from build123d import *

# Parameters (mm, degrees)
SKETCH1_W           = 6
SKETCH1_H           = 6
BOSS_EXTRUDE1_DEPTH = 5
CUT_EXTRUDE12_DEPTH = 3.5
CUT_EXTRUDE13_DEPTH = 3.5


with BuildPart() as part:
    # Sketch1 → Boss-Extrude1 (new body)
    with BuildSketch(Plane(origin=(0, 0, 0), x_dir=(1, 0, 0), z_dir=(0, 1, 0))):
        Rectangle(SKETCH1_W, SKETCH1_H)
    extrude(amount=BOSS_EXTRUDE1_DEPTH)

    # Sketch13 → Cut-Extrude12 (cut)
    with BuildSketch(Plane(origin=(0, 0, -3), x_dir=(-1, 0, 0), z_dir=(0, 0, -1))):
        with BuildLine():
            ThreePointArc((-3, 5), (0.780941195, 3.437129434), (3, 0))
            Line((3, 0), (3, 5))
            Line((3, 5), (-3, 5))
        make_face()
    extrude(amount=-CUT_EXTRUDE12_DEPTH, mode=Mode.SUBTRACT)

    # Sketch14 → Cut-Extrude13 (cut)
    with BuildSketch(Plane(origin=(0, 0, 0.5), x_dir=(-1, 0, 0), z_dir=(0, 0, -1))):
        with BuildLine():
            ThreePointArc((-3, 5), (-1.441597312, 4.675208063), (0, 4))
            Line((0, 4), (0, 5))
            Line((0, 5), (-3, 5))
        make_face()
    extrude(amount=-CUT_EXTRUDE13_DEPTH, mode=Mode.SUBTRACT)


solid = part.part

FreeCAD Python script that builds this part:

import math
import FreeCAD as App
import Part
import Sketcher
from FreeCAD import Vector


def add_polygon(sketch, points):
    """Adds a closed chain of lines whose ends are joined by coincident constraints."""
    first, n = sketch.GeometryCount, len(points)
    for a, b in zip(points, points[1:] + points[:1]):
        sketch.addGeometry(Part.LineSegment(App.Vector(*a, 0), App.Vector(*b, 0)), False)
    for i in range(n):
        sketch.addConstraint(Sketcher.Constraint("Coincident", first + i, 2, first + (i + 1) % n, 1))

doc = App.newDocument("Part")
body = doc.addObject("PartDesign::Body", "Body")

# Sketch on XZ plane
sketch1 = body.newObject("Sketcher::SketchObject", "Sketch")
sketch1.AttachmentSupport = (doc.getObject("XZ_Plane"), [""])
sketch1.MapMode = "FlatFace"
add_polygon(sketch1, [(-3, -3), (-3, 3), (3, 3), (3, -3)])  # lines 0-3
sketch1.addConstraint(Sketcher.Constraint("Vertical", 0))
sketch1.addConstraint(Sketcher.Constraint("Horizontal", 1))
sketch1.addConstraint(Sketcher.Constraint("Vertical", 2))
sketch1.addConstraint(Sketcher.Constraint("Horizontal", 3))
sketch1.addConstraint(Sketcher.Constraint("Symmetric", 0, 2, 2, 2, -1, 1))
sketch1.addConstraint(Sketcher.Constraint("Equal", 3, 0))
sketch1.addConstraint(Sketcher.Constraint("DistanceX", 1, 1, 1, 2, 6.0))
pad1 = body.newObject("PartDesign::Pad", "Pad")
pad1.Profile = sketch1
pad1.Length = 5
pad1.Reversed = True

# Sketch on XY plane
sketch2 = body.newObject("Sketcher::SketchObject", "Sketch001")
sketch2.AttachmentSupport = (doc.getObject("XY_Plane"), [""])
sketch2.MapMode = "FlatFace"
sketch2.AttachmentOffset = App.Placement(Vector(0, 0, -3), App.Rotation())
sketch2.addGeometry(Part.ArcOfCircle(Part.Circle(Vector(4, -2, 0), Vector(0, 0, 1), 7), math.radians(95), math.radians(165)), False)
sketch2.addGeometry(Part.LineSegment(Vector(-3, 0, 0), Vector(-3, 5, 0)), False)
sketch2.addGeometry(Part.LineSegment(Vector(-3, 5, 0), Vector(3, 5, 0)), False)
sketch2.addConstraint(Sketcher.Constraint("Coincident", 0, 2, 1, 1))
sketch2.addConstraint(Sketcher.Constraint("Coincident", 1, 2, 2, 1))
sketch2.addConstraint(Sketcher.Constraint("Coincident", 2, 2, 0, 1))
sketch2.addConstraint(Sketcher.Constraint("Vertical", 1))
sketch2.addConstraint(Sketcher.Constraint("Horizontal", 2))
sketch2.addConstraint(Sketcher.Constraint("PointOnObject", 0, 2, -1))
sketch2.addConstraint(Sketcher.Constraint("DistanceX", 2, 1, 2, 2, 6.0))
sketch2.addConstraint(Sketcher.Constraint("DistanceY", 1, 1, 1, 2, 5.0))
sketch2.addConstraint(Sketcher.Constraint("DistanceX", 0, 2, -1, 1, 3.0))
sketch2.addConstraint(Sketcher.Constraint("Radius", 0, 6.860605))
pocket1 = body.newObject("PartDesign::Pocket", "Pocket")
pocket1.Profile = sketch2
pocket1.Length = 3.5
pocket1.Reversed = True

# Sketch on XY plane
sketch3 = body.newObject("Sketcher::SketchObject", "Sketch002")
sketch3.AttachmentSupport = (doc.getObject("XY_Plane"), [""])
sketch3.MapMode = "FlatFace"
sketch3.AttachmentOffset = App.Placement(Vector(0, 0, 0.5), App.Rotation())
sketch3.addGeometry(Part.ArcOfCircle(Part.Circle(Vector(3.6, -1.8, 0), Vector(0, 0, 1), 6.9), math.radians(95), math.radians(122)), False)
sketch3.addGeometry(Part.LineSegment(Vector(0, 4, 0), Vector(0, 5, 0)), False)
sketch3.addGeometry(Part.LineSegment(Vector(0, 5, 0), Vector(3, 5, 0)), False)
sketch3.addConstraint(Sketcher.Constraint("Coincident", 0, 2, 1, 1))
sketch3.addConstraint(Sketcher.Constraint("Coincident", 1, 2, 2, 1))
sketch3.addConstraint(Sketcher.Constraint("Coincident", 2, 2, 0, 1))
sketch3.addConstraint(Sketcher.Constraint("Vertical", 1))
sketch3.addConstraint(Sketcher.Constraint("Horizontal", 2))
sketch3.addConstraint(Sketcher.Constraint("PointOnObject", 0, 2, -2))
sketch3.addConstraint(Sketcher.Constraint("DistanceX", 2, 1, 2, 2, 3.0))
sketch3.addConstraint(Sketcher.Constraint("DistanceY", 1, 1, 1, 2, 1.0))
sketch3.addConstraint(Sketcher.Constraint("DistanceY", -1, 1, 0, 2, 4.0))
sketch3.addConstraint(Sketcher.Constraint("Radius", 0, 6.860605))
pocket2 = body.newObject("PartDesign::Pocket", "Pocket001")
pocket2.Profile = sketch3
pocket2.Length = 3.5
pocket2.Reversed = True

doc.recompute()
